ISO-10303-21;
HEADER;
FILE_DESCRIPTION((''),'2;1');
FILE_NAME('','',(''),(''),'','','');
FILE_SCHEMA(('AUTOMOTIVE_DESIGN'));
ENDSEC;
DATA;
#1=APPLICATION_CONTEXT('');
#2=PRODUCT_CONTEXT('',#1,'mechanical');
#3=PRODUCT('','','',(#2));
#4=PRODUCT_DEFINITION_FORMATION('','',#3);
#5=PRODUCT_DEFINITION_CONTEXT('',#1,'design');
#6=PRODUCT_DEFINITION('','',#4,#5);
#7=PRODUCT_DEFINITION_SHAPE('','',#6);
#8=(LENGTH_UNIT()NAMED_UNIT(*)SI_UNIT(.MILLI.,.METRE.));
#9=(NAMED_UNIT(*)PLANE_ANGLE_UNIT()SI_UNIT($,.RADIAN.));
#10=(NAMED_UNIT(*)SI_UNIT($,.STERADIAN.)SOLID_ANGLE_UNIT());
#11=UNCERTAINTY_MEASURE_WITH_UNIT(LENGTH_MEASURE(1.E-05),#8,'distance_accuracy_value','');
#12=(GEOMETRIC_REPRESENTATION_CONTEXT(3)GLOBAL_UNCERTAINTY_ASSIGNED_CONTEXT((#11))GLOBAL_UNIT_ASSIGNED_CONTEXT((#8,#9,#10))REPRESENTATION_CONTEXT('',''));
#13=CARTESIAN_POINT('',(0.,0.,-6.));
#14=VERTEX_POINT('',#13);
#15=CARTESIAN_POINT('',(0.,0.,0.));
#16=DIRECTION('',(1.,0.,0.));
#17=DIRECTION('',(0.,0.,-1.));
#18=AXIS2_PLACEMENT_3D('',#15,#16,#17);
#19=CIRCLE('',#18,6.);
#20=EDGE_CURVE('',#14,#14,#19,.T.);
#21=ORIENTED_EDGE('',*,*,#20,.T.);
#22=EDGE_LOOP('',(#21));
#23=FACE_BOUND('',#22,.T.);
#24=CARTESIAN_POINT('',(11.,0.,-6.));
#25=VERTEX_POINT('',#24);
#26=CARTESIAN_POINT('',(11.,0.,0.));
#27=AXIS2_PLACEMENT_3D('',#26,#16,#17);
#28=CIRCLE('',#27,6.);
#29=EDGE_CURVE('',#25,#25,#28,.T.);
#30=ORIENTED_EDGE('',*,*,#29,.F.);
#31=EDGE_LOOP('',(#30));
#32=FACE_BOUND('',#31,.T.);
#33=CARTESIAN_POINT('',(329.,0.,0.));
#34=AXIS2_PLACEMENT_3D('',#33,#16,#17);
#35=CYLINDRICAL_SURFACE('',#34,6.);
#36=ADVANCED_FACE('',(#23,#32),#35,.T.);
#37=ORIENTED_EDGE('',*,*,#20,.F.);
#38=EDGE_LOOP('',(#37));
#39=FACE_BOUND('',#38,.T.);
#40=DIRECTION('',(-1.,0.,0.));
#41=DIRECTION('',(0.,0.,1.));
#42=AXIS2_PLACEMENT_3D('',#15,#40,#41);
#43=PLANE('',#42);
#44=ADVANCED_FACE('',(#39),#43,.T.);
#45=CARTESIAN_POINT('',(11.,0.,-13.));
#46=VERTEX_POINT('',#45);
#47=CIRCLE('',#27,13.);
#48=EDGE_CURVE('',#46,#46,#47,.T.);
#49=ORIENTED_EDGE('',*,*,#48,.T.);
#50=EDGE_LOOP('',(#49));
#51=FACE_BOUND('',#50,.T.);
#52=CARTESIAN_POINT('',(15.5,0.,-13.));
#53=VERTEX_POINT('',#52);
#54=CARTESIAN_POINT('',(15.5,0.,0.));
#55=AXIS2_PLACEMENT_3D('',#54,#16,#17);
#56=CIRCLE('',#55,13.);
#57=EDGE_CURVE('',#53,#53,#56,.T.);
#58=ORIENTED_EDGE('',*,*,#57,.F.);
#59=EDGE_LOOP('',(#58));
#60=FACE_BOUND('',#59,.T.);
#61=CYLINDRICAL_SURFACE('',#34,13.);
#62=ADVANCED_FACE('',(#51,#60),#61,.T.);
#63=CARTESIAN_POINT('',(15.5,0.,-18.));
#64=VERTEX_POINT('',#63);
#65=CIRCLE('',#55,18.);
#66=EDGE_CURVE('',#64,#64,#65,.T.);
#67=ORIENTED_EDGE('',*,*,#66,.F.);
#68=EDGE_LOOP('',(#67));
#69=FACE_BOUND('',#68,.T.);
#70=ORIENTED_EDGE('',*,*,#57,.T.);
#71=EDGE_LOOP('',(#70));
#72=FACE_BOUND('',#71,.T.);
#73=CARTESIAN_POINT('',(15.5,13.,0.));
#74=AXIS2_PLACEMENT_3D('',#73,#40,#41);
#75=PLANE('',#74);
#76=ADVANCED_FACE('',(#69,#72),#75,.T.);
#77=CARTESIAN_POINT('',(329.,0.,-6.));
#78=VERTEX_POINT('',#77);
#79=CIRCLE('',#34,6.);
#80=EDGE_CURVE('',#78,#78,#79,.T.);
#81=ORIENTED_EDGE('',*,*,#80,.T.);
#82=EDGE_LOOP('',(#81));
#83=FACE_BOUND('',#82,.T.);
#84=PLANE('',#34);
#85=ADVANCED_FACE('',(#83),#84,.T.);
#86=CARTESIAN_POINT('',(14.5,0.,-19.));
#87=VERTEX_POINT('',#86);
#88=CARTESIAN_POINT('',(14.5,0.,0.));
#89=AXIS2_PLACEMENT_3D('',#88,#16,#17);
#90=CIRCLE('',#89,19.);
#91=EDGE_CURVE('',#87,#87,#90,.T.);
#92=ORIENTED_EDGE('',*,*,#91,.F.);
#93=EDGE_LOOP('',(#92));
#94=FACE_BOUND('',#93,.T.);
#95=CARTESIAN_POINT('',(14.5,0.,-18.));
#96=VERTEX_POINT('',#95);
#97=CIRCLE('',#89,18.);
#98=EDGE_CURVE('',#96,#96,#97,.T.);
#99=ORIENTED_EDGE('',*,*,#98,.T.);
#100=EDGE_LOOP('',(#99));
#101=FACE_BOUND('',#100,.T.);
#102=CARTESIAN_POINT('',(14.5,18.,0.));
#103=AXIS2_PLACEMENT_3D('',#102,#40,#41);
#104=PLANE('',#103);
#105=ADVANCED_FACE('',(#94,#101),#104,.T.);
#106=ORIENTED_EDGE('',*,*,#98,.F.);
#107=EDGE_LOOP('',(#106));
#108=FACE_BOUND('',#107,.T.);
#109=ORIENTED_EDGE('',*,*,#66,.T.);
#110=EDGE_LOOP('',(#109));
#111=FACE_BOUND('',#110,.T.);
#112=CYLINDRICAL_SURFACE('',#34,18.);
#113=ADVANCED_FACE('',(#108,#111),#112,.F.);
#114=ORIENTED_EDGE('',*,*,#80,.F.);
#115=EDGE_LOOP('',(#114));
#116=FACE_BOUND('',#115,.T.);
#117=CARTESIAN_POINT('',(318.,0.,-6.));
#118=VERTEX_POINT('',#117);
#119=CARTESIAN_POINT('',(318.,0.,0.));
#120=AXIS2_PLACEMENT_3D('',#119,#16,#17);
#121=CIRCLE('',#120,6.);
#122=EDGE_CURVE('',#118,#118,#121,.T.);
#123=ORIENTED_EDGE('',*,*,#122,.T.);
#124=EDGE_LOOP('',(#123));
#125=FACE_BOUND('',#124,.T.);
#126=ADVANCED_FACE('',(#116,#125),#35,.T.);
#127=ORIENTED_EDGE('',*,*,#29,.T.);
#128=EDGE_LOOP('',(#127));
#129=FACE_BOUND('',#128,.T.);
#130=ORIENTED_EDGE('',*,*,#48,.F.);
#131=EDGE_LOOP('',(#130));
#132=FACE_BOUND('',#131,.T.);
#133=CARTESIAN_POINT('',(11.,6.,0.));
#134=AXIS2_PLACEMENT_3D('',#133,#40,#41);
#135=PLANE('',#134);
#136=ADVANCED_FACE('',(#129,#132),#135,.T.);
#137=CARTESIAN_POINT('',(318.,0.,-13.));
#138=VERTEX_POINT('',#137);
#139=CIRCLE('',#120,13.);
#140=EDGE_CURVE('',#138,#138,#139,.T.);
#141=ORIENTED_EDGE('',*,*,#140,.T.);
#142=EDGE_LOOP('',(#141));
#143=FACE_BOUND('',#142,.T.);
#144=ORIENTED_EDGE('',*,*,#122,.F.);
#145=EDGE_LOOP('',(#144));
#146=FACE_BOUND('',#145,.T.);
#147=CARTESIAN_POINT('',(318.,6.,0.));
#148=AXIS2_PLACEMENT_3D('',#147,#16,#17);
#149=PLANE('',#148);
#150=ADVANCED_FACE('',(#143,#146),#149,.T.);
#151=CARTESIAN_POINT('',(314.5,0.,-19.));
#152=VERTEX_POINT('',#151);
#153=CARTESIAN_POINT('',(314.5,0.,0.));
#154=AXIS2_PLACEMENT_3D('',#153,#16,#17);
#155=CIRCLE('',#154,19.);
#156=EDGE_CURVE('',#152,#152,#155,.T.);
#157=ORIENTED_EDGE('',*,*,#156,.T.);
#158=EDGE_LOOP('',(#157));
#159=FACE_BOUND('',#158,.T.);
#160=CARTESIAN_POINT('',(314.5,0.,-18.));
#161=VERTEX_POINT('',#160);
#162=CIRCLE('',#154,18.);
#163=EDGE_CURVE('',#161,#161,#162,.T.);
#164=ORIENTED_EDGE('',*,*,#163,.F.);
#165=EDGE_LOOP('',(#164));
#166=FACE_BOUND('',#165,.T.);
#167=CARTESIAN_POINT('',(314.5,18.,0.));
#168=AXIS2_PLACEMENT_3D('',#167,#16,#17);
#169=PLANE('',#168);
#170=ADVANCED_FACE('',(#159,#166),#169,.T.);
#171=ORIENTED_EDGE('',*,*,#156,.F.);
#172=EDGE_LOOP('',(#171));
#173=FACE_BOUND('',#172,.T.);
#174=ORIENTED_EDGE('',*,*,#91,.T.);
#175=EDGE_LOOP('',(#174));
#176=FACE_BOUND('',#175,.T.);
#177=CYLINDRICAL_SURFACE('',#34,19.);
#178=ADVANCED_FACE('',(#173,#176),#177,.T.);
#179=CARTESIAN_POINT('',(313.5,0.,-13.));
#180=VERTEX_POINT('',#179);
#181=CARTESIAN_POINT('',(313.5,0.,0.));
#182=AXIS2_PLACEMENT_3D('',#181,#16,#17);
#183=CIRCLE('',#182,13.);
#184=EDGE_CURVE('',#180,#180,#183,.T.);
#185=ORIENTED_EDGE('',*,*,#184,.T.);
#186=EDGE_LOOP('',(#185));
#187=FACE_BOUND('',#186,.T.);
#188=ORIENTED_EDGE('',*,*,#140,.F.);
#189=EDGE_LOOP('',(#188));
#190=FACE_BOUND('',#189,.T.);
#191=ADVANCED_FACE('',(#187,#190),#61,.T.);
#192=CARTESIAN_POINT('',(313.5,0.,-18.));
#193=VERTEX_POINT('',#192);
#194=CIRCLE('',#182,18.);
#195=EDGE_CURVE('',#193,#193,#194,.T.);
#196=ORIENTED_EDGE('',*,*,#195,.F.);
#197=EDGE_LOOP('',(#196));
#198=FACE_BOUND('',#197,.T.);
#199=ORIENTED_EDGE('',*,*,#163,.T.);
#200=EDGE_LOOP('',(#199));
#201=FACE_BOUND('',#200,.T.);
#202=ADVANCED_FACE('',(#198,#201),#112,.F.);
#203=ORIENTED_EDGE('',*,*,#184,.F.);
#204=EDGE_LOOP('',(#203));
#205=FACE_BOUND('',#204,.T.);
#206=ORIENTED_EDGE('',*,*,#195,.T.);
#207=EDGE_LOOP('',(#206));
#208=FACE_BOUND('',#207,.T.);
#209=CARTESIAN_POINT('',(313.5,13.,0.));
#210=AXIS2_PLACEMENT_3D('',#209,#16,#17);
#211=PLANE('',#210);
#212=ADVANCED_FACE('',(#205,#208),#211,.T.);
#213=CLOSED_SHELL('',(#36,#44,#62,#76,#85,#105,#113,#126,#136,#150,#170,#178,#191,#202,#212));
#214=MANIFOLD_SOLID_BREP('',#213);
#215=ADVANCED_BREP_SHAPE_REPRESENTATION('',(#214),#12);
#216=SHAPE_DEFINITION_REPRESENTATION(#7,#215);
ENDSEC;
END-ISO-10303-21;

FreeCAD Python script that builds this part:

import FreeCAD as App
import Part
import Sketcher
from FreeCAD import Vector


def add_polygon(sketch, points):
    """Adds a closed chain of lines whose ends are joined by coincident constraints."""
    first, n = sketch.GeometryCount, len(points)
    for a, b in zip(points, points[1:] + points[:1]):
        sketch.addGeometry(Part.LineSegment(App.Vector(*a, 0), App.Vector(*b, 0)), False)
    for i in range(n):
        sketch.addConstraint(Sketcher.Constraint("Coincident", first + i, 2, first + (i + 1) % n, 1))

doc = App.newDocument("Part")
params = doc.addObject("Spreadsheet::Sheet", "Params")
for row, (alias, value) in enumerate([
    ("sketch1_width", "329 mm"),
    ("sketch1_width2", "11 mm"),
    ("sketch1_width3", "1 mm"),
    ("sketch1_width4", "300 mm"),
    ("sketch1_height", "6 mm"),
    ("revolution_angle", "360 deg"),
], start=1):
    params.set(f"A{row}", alias)
    params.set(f"B{row}", "=" + value)
    params.setAlias(f"B{row}", alias)

body = doc.addObject("PartDesign::Body", "Body")

# Sketch on XY plane
sketch1 = body.newObject("Sketcher::SketchObject", "Sketch")
sketch1.AttachmentSupport = (doc.getObject("XY_Plane"), [""])
sketch1.MapMode = "FlatFace"
add_polygon(sketch1, [(0, 6), (0, 0), (329, 0), (329, 6), (318, 6), (318, 13), (313.5, 13), (313.5, 18), (314.5, 18), (314.5, 19), (14.5, 19), (14.5, 18), (15.5, 18), (15.5, 13), (11, 13), (11, 6)])  # lines 0-15
sketch1.addConstraint(Sketcher.Constraint("Vertical", 0))
sketch1.addConstraint(Sketcher.Constraint("Horizontal", 1))
sketch1.addConstraint(Sketcher.Constraint("Vertical", 2))
sketch1.addConstraint(Sketcher.Constraint("Horizontal", 3))
sketch1.addConstraint(Sketcher.Constraint("Vertical", 4))
sketch1.addConstraint(Sketcher.Constraint("Horizontal", 5))
sketch1.addConstraint(Sketcher.Constraint("Vertical", 6))
sketch1.addConstraint(Sketcher.Constraint("Horizontal", 7))
sketch1.addConstraint(Sketcher.Constraint("Vertical", 8))
sketch1.addConstraint(Sketcher.Constraint("Horizontal", 9))
sketch1.addConstraint(Sketcher.Constraint("Vertical", 10))
sketch1.addConstraint(Sketcher.Constraint("Horizontal", 11))
sketch1.addConstraint(Sketcher.Constraint("Vertical", 12))
sketch1.addConstraint(Sketcher.Constraint("Horizontal", 13))
sketch1.addConstraint(Sketcher.Constraint("Vertical", 14))
sketch1.addConstraint(Sketcher.Constraint("Horizontal", 15))
sketch1.addConstraint(Sketcher.Constraint("Coincident", 0, 2, -1, 1))
sketch1.addConstraint(Sketcher.Constraint("Horizontal", 7, 2, 10, 2))
sketch1.addConstraint(Sketcher.Constraint("Horizontal", 5, 2, 12, 2))
sketch1.addConstraint(Sketcher.Constraint("Horizontal", 3, 2, 14, 2))
sketch1.addConstraint(Sketcher.Constraint("Equal", 7, 11))
sketch1.addConstraint(Sketcher.Constraint("Equal", 5, 13))
sketch1.addConstraint(Sketcher.Constraint("Equal", 3, 15))
sketch1.addConstraint(Sketcher.Constraint("Equal", 11, 8))
sketch1.addConstraint(Sketcher.Constraint("DistanceX", 1, 1, 1, 2, 329.0))
sketch1.addConstraint(Sketcher.Constraint("DistanceX", 3, 2, 3, 1, 11.0))
sketch1.addConstraint(Sketcher.Constraint("DistanceX", 7, 1, 7, 2, 1.0))
sketch1.addConstraint(Sketcher.Constraint("DistanceX", 9, 2, 9, 1, 300.0))
sketch1.addConstraint(Sketcher.Constraint("DistanceY", 0, 2, 0, 1, 6.0))
sketch1.addConstraint(Sketcher.Constraint("DistanceY", 4, 1, 4, 2, 7.0))
sketch1.addConstraint(Sketcher.Constraint("DistanceY", 6, 1, 6, 2, 5.0))
sketch1.setExpression("Constraints[40]", "Params.sketch1_width")
sketch1.setExpression("Constraints[41]", "Params.sketch1_width2")
sketch1.setExpression("Constraints[42]", "Params.sketch1_width3")
sketch1.setExpression("Constraints[43]", "Params.sketch1_width4")
sketch1.setExpression("Constraints[44]", "Params.sketch1_height")
revolution = body.newObject("PartDesign::Revolution", "Revolution")
revolution.Profile = sketch1
revolution.ReferenceAxis = (sketch1, ["H_Axis"])
revolution.setExpression("Angle", "Params.revolution_angle")

doc.recompute()
